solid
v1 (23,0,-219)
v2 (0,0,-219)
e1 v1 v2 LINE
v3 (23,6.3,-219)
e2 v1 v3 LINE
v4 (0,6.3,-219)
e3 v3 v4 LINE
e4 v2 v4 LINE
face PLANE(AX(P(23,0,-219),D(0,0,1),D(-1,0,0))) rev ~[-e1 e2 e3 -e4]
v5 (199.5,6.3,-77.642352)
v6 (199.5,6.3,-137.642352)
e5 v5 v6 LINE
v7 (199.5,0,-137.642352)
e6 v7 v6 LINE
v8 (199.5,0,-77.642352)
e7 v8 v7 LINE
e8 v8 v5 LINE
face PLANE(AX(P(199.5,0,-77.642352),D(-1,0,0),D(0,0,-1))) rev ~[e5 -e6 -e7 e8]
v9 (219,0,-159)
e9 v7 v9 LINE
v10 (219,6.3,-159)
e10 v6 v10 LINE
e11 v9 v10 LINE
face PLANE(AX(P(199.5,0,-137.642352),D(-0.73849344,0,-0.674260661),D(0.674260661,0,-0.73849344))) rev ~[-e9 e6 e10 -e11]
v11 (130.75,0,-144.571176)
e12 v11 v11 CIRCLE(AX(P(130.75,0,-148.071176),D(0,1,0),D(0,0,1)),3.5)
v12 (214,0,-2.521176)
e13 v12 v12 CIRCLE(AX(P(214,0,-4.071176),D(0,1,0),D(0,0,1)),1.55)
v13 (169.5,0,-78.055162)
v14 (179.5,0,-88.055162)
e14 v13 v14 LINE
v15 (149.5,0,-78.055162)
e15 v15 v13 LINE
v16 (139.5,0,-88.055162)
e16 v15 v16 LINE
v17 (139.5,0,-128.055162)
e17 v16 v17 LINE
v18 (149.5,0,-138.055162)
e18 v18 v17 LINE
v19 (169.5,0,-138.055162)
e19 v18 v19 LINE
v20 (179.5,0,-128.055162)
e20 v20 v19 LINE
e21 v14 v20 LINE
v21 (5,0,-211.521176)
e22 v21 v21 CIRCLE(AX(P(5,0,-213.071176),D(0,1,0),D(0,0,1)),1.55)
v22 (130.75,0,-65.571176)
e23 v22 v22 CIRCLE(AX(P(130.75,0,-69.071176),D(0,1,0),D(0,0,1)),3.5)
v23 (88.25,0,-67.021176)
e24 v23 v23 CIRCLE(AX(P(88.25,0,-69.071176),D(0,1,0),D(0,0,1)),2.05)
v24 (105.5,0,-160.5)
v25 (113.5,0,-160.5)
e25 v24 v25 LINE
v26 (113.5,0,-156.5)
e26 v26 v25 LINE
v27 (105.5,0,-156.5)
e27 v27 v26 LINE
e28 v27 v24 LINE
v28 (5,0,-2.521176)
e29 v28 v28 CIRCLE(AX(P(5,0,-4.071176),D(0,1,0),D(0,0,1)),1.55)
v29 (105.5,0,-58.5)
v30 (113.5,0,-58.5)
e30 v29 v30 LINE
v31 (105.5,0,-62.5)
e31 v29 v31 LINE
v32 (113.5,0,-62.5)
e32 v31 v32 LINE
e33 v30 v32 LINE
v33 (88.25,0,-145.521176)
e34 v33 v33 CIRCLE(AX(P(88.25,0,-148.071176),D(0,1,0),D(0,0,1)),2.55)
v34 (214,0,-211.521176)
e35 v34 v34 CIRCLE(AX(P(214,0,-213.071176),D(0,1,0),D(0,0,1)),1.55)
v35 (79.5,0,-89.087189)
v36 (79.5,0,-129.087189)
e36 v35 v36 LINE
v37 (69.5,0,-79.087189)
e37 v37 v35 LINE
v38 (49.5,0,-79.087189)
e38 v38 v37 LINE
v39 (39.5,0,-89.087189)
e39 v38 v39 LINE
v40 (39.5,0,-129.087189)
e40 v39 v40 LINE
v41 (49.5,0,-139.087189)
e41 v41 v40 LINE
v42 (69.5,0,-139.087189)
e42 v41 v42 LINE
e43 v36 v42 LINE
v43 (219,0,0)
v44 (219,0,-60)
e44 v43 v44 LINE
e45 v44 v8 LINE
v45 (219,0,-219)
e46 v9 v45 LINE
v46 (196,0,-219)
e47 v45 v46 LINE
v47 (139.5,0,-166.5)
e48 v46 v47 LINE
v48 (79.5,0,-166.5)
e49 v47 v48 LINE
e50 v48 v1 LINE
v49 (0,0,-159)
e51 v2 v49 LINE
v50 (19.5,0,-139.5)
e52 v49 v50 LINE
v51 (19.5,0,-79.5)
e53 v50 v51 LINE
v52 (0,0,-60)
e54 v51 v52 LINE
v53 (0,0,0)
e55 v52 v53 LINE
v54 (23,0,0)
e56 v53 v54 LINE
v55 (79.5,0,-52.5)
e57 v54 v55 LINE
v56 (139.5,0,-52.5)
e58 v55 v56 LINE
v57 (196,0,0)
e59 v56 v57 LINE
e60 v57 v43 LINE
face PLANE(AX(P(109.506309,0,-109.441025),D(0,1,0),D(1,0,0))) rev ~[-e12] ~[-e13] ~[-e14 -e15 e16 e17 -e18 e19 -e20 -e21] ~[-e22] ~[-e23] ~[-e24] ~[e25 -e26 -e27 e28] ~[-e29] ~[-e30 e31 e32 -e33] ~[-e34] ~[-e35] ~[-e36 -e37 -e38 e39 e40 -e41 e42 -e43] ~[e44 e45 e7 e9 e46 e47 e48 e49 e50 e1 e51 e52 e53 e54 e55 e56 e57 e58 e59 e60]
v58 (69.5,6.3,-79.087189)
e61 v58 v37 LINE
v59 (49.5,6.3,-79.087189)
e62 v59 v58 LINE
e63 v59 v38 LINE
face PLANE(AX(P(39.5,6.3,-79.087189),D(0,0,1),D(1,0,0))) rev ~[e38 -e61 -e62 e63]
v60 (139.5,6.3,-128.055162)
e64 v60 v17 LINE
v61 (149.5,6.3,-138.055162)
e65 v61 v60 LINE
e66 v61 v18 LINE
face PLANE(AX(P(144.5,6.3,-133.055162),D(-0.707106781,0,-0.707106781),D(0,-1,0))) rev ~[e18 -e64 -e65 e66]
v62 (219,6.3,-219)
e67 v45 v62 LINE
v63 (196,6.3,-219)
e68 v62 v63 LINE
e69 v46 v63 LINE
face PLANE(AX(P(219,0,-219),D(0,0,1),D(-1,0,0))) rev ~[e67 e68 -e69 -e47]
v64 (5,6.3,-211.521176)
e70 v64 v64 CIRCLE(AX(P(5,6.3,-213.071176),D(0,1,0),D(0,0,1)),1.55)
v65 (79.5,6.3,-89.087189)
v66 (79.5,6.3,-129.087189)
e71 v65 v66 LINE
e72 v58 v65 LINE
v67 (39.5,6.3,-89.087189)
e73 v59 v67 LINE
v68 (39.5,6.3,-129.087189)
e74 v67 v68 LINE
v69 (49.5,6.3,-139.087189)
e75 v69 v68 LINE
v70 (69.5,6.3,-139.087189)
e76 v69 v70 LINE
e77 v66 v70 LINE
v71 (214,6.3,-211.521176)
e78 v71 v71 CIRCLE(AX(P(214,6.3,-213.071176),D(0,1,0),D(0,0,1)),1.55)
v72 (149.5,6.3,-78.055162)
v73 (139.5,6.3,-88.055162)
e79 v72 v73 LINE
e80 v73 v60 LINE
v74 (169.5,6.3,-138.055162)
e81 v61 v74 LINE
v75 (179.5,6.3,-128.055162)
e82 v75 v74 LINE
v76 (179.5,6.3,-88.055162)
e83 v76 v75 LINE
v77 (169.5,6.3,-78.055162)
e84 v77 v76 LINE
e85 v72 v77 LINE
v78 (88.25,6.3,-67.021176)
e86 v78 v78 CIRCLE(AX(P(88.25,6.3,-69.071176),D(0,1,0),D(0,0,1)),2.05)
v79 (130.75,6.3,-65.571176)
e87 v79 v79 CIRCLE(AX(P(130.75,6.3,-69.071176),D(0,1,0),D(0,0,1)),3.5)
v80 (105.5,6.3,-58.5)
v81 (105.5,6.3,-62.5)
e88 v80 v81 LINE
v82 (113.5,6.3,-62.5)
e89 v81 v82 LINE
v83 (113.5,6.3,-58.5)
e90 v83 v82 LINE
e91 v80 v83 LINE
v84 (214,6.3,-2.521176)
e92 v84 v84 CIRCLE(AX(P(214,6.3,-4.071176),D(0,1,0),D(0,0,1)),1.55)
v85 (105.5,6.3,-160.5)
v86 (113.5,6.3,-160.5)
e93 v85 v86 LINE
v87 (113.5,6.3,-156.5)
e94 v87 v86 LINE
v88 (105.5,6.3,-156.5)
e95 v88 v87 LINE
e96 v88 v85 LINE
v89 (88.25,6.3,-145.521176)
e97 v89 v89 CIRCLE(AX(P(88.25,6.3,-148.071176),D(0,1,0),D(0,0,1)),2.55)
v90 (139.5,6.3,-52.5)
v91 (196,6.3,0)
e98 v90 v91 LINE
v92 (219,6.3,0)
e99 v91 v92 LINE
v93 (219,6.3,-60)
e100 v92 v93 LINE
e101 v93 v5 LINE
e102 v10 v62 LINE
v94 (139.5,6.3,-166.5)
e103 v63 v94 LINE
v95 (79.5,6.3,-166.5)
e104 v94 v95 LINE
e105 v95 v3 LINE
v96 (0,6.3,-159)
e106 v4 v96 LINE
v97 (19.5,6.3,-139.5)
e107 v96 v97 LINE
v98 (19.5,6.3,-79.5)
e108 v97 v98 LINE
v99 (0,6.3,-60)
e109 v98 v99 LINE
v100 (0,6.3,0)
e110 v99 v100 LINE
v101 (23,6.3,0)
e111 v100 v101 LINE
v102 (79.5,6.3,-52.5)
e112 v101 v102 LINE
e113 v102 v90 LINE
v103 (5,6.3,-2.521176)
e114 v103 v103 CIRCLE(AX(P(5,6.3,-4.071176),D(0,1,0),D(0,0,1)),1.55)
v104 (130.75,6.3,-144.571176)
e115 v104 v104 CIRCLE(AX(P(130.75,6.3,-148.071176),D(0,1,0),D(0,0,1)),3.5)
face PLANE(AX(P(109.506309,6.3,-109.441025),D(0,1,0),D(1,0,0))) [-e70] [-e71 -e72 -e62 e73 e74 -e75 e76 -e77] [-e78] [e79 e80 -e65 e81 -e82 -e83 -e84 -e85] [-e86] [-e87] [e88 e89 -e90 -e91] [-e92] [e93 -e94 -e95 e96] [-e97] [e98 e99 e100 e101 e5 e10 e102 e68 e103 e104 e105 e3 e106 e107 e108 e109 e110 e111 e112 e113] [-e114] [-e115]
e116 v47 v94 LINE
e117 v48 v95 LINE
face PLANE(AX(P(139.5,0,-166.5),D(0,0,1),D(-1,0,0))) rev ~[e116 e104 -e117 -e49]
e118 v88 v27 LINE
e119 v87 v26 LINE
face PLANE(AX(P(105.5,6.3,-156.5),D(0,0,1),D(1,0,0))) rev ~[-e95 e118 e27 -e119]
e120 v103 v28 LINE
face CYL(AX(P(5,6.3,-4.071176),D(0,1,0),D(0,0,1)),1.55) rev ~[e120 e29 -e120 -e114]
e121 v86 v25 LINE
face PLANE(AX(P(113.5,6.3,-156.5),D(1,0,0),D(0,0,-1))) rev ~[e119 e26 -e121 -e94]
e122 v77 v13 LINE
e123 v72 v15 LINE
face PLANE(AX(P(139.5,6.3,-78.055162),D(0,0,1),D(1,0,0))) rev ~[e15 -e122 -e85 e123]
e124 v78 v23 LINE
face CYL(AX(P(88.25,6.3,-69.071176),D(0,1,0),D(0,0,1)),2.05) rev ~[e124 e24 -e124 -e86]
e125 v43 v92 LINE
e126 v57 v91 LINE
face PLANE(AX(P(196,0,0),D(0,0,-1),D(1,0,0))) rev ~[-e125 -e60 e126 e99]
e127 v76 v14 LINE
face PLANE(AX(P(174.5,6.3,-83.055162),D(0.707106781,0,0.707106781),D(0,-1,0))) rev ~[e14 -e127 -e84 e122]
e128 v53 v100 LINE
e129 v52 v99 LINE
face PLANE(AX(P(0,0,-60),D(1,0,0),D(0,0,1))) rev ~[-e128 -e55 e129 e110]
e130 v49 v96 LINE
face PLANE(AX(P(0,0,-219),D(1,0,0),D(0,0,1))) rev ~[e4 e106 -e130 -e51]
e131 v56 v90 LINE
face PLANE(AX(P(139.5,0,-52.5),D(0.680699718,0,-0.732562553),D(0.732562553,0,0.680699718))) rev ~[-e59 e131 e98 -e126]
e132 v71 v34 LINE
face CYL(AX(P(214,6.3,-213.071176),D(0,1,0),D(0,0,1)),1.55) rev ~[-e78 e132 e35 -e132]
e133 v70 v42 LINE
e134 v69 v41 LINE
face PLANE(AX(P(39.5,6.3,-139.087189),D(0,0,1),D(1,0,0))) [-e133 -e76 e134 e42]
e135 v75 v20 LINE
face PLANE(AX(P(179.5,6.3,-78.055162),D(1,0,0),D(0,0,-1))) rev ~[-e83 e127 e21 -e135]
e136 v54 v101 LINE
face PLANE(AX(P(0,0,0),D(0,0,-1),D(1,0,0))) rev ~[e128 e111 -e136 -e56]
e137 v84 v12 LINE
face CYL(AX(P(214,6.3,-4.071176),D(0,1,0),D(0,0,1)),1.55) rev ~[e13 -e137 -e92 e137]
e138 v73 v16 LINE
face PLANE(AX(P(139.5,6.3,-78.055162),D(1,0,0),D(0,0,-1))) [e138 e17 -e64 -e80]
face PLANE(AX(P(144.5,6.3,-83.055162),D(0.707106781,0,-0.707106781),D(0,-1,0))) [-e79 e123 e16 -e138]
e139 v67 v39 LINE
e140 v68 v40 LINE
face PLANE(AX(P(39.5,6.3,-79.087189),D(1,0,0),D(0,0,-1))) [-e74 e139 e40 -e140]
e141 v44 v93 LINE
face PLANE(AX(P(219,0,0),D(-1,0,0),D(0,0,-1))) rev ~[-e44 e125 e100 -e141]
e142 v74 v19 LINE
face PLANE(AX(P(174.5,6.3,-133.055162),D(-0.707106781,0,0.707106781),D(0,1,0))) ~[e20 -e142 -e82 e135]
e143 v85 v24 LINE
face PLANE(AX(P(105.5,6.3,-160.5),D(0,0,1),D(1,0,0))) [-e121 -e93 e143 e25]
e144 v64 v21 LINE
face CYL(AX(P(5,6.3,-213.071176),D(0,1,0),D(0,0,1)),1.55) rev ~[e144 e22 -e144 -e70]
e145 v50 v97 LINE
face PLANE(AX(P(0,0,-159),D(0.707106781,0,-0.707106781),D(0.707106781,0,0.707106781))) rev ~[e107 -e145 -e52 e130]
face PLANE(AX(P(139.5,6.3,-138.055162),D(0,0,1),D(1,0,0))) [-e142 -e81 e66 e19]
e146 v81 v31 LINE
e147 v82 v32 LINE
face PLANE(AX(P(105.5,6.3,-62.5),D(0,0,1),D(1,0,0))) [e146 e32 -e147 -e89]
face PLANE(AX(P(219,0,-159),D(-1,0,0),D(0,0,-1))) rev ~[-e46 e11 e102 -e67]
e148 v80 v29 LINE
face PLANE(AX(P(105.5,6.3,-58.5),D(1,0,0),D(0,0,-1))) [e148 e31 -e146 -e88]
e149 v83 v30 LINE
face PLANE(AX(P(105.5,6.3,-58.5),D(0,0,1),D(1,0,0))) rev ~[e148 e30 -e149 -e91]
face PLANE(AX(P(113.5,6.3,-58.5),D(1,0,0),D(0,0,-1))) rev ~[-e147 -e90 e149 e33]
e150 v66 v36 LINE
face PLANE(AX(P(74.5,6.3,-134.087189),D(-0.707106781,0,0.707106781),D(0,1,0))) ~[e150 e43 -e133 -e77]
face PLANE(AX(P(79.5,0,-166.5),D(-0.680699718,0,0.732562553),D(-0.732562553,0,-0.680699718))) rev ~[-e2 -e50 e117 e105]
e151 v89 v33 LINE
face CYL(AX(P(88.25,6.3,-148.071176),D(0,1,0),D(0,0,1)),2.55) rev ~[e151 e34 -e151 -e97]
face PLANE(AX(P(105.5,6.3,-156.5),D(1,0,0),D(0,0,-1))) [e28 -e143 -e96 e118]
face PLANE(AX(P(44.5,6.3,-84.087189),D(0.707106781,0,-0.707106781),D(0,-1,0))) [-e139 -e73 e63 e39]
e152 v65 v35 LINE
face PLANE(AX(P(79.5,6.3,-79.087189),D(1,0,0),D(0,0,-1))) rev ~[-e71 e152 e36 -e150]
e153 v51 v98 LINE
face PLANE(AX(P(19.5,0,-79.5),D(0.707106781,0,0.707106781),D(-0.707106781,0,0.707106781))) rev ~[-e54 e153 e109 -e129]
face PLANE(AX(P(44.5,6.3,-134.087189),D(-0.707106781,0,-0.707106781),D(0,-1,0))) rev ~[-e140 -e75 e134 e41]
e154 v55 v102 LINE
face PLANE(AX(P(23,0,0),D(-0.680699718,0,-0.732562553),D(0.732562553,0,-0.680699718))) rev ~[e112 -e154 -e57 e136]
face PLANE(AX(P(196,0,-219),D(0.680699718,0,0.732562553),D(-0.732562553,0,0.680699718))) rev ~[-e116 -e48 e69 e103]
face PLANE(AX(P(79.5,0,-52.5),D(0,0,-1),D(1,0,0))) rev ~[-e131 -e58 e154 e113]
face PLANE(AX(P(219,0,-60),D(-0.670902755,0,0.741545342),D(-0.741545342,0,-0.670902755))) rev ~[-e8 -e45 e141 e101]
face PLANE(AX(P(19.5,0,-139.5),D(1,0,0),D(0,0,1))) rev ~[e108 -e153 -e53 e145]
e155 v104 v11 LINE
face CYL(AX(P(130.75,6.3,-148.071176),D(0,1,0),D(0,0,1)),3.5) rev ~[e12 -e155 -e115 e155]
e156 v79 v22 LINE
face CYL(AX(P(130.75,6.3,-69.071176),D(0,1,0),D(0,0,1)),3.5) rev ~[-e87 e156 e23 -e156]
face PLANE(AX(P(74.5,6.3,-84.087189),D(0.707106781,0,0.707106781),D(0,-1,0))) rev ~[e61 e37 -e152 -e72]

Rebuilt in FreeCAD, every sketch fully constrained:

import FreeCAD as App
import Part
import Sketcher
from FreeCAD import Vector
Q = App.Units.Quantity


def edges_at(feature, points):
    """Names of the edges that pass closest to the given points."""
    edges = feature.Shape.Edges
    near = lambda p: min(range(len(edges)), key=lambda i: edges[i].distToShape(Part.Vertex(*p))[0])
    return sorted({f"Edge{near(p) + 1}" for p in points})

doc = App.newDocument("Part")
body = doc.addObject("PartDesign::Body", "Body")

sketch1 = body.newObject("Sketcher::SketchObject", "Sketch")
sketch1.AttachmentSupport = (doc.getObject("XZ_Plane"), [""])
sketch1.MapMode = "FlatFace"
sketch1.addGeometry([
    Part.LineSegment(Vector(0, 0, 0), Vector(23, 0, 0)),
    Part.LineSegment(Vector(23, 0, 0), Vector(80, -52, 0)),
    Part.LineSegment(Vector(80, -52, 0), Vector(140, -52, 0)),
    Part.LineSegment(Vector(140, -52, 0), Vector(196, 0, 0)),
    Part.LineSegment(Vector(196, 0, 0), Vector(219, 0, 0)),
    Part.LineSegment(Vector(219, 0, 0), Vector(219, -60, 0)),
    Part.LineSegment(Vector(219, -60, 0), Vector(200, -78, 0)),
    Part.LineSegment(Vector(200, -78, 0), Vector(200, -138, 0)),
    Part.LineSegment(Vector(200, -138, 0), Vector(219, -159, 0)),
    Part.LineSegment(Vector(219, -159, 0), Vector(219, -219, 0)),
    Part.LineSegment(Vector(219, -219, 0), Vector(196, -219, 0)),
    Part.LineSegment(Vector(196, -219, 0), Vector(140, -166, 0)),
    Part.LineSegment(Vector(140, -166, 0), Vector(80, -166, 0)),
    Part.LineSegment(Vector(80, -166, 0), Vector(23, -219, 0)),
    Part.LineSegment(Vector(23, -219, 0), Vector(0, -219, 0)),
    Part.LineSegment(Vector(0, -219, 0), Vector(0, -159, 0)),
    Part.LineSegment(Vector(0, -159, 0), Vector(20, -140, 0)),
    Part.LineSegment(Vector(20, -140, 0), Vector(20, -80, 0)),
    Part.LineSegment(Vector(20, -80, 0), Vector(0, -60, 0)),
    Part.LineSegment(Vector(0, -60, 0), Vector(0, 0, 0)),
], False)
sketch1.addConstraint([
    Sketcher.Constraint("Coincident", 0, 2, 1, 1),
    Sketcher.Constraint("Coincident", 1, 2, 2, 1),
    Sketcher.Constraint("Coincident", 2, 2, 3, 1),
    Sketcher.Constraint("Coincident", 3, 2, 4, 1),
    Sketcher.Constraint("Coincident", 4, 2, 5, 1),
    Sketcher.Constraint("Coincident", 5, 2, 6, 1),
    Sketcher.Constraint("Coincident", 6, 2, 7, 1),
    Sketcher.Constraint("Coincident", 7, 2, 8, 1),
    Sketcher.Constraint("Coincident", 8, 2, 9, 1),
    Sketcher.Constraint("Coincident", 9, 2, 10, 1),
    Sketcher.Constraint("Coincident", 10, 2, 11, 1),
    Sketcher.Constraint("Coincident", 11, 2, 12, 1),
    Sketcher.Constraint("Coincident", 12, 2, 13, 1),
    Sketcher.Constraint("Coincident", 13, 2, 14, 1),
    Sketcher.Constraint("Coincident", 14, 2, 15, 1),
    Sketcher.Constraint("Coincident", 15, 2, 16, 1),
    Sketcher.Constraint("Coincident", 16, 2, 17, 1),
    Sketcher.Constraint("Coincident", 17, 2, 18, 1),
    Sketcher.Constraint("Coincident", 18, 2, 19, 1),
    Sketcher.Constraint("Coincident", 19, 2, 0, 1),
    Sketcher.Constraint("Horizontal", 0),
    Sketcher.Constraint("Horizontal", 2),
    Sketcher.Constraint("Horizontal", 4),
    Sketcher.Constraint("Vertical", 5),
    Sketcher.Constraint("Vertical", 7),
    Sketcher.Constraint("Vertical", 9),
    Sketcher.Constraint("Horizontal", 10),
    Sketcher.Constraint("Horizontal", 12),
    Sketcher.Constraint("Horizontal", 14),
    Sketcher.Constraint("Vertical", 15),
    Sketcher.Constraint("Vertical", 17),
    Sketcher.Constraint("Vertical", 19),
    Sketcher.Constraint("Coincident", 19, 2, -1, 1),
    Sketcher.Constraint("PointOnObject", 3, 2, -1),
    Sketcher.Constraint("PointOnObject", 14, 2, -2),
    Sketcher.Constraint("Parallel", 1, 11),
    Sketcher.Constraint("Parallel", 3, 13),
    Sketcher.Constraint("Perpendicular", 16, 18),
    Sketcher.Constraint("Horizontal", 10, 2, 13, 2),
    Sketcher.Constraint("Horizontal", 8, 2, 15, 2),
    Sketcher.Constraint("Horizontal", 5, 2, 18, 2),
    Sketcher.Constraint("Vertical", 5, 2, 8, 2),
    Sketcher.Constraint("Vertical", 3, 2, 10, 2),
    Sketcher.Constraint("Vertical", 2, 2, 11, 2),
    Sketcher.Constraint("Vertical", 1, 2, 12, 2),
    Sketcher.Constraint("Vertical", 0, 2, 13, 2),
    Sketcher.Constraint("Equal", 0, 4),
    Sketcher.Constraint("Equal", 12, 5),
    Sketcher.Constraint("Equal", 5, 7),
    Sketcher.Constraint("Equal", 7, 9),
    Sketcher.Constraint("Equal", 15, 17),
    Sketcher.Constraint("Equal", 16, 18),
    Sketcher.Constraint("DistanceX", 0, 1, 0, 2, Q("23 mm")),
    Sketcher.Constraint("DistanceX", 2, 1, 2, 2, Q("60 mm")),
    Sketcher.Constraint("DistanceX", -1, 1, 3, 2, Q("196 mm")),
    Sketcher.Constraint("DistanceY", 8, 2, -1, 1, Q("159 mm")),
    Sketcher.Constraint("DistanceX", 2, 2, 6, 2, Q("60 mm")),
    Sketcher.Constraint("DistanceY", 12, 2, 1, 2, Q("114 mm")),
    Sketcher.Constraint("DistanceY", 6, 2, -1, 1, Q("77.642352 mm")),
])
pad1 = body.newObject("PartDesign::Pad", "Pad")
pad1.Profile = sketch1
pad1.Length = 6.3
pad1.Reversed = True

sketch2 = body.newObject("Sketcher::SketchObject", "Sketch001")
sketch2.AttachmentSupport = (doc.getObject("XZ_Plane"), [""])
sketch2.MapMode = "FlatFace"
sketch2.AttachmentOffset = App.Placement(Vector(0, 0, -6.3), App.Rotation())
sketch2.addGeometry([
    Part.LineSegment(Vector(105.5, -160.5, 0), Vector(105.5, -156.5, 0)),
    Part.LineSegment(Vector(105.5, -156.5, 0), Vector(113.5, -156.5, 0)),
    Part.LineSegment(Vector(113.5, -156.5, 0), Vector(113.5, -160.5, 0)),
    Part.LineSegment(Vector(113.5, -160.5, 0), Vector(105.5, -160.5, 0)),
    Part.LineSegment(Vector(105.5, -62.5, 0), Vector(105.5, -58.5, 0)),
    Part.LineSegment(Vector(105.5, -58.5, 0), Vector(113.5, -58.5, 0)),
    Part.LineSegment(Vector(113.5, -58.5, 0), Vector(113.5, -62.5, 0)),
    Part.LineSegment(Vector(113.5, -62.5, 0), Vector(105.5, -62.5, 0)),
    Part.LineSegment(Vector(39.5, -139.1, 0), Vector(39.5, -79.1, 0)),
    Part.LineSegment(Vector(39.5, -79.1, 0), Vector(79.5, -79.1, 0)),
    Part.LineSegment(Vector(79.5, -79.1, 0), Vector(79.5, -139.1, 0)),
    Part.LineSegment(Vector(79.5, -139.1, 0), Vector(39.5, -139.1, 0)),
    Part.LineSegment(Vector(139.5, -138.1, 0), Vector(139.5, -78.1, 0)),
    Part.LineSegment(Vector(139.5, -78.1, 0), Vector(179.5, -78.1, 0)),
    Part.LineSegment(Vector(179.5, -78.1, 0), Vector(179.5, -138.1, 0)),
    Part.LineSegment(Vector(179.5, -138.1, 0), Vector(139.5, -138.1, 0)),
], False)
sketch2.addConstraint([
    Sketcher.Constraint("Coincident", 0, 2, 1, 1),
    Sketcher.Constraint("Coincident", 1, 2, 2, 1),
    Sketcher.Constraint("Coincident", 2, 2, 3, 1),
    Sketcher.Constraint("Coincident", 3, 2, 0, 1),
    Sketcher.Constraint("Coincident", 4, 2, 5, 1),
    Sketcher.Constraint("Coincident", 5, 2, 6, 1),
    Sketcher.Constraint("Coincident", 6, 2, 7, 1),
    Sketcher.Constraint("Coincident", 7, 2, 4, 1),
    Sketcher.Constraint("Coincident", 8, 2, 9, 1),
    Sketcher.Constraint("Coincident", 9, 2, 10, 1),
    Sketcher.Constraint("Coincident", 10, 2, 11, 1),
    Sketcher.Constraint("Coincident", 11, 2, 8, 1),
    Sketcher.Constraint("Coincident", 12, 2, 13, 1),
    Sketcher.Constraint("Coincident", 13, 2, 14, 1),
    Sketcher.Constraint("Coincident", 14, 2, 15, 1),
    Sketcher.Constraint("Coincident", 15, 2, 12, 1),
    Sketcher.Constraint("Vertical", 0),
    Sketcher.Constraint("Horizontal", 1),
    Sketcher.Constraint("Vertical", 2),
    Sketcher.Constraint("Horizontal", 3),
    Sketcher.Constraint("Vertical", 4),
    Sketcher.Constraint("Horizontal", 5),
    Sketcher.Constraint("Vertical", 6),
    Sketcher.Constraint("Horizontal", 7),
    Sketcher.Constraint("Vertical", 8),
    Sketcher.Constraint("Horizontal", 9),
    Sketcher.Constraint("Vertical", 10),
    Sketcher.Constraint("Horizontal", 11),
    Sketcher.Constraint("Vertical", 12),
    Sketcher.Constraint("Horizontal", 13),
    Sketcher.Constraint("Vertical", 14),
    Sketcher.Constraint("Horizontal", 15),
    Sketcher.Constraint("Vertical", 3, 2, 4, 2),
    Sketcher.Constraint("Vertical", 2, 2, 5, 2),
    Sketcher.Constraint("Equal", 11, 13),
    Sketcher.Constraint("Equal", 2, 4),
    Sketcher.Constraint("Equal", 10, 12),
    Sketcher.Constraint("DistanceX", 1, 1, 1, 2, Q("8 mm")),
    Sketcher.Constraint("DistanceX", 9, 1, 9, 2, Q("40 mm")),
    Sketcher.Constraint("DistanceY", 0, 1, 0, 2, Q("4 mm")),
    Sketcher.Constraint("DistanceY", 8, 1, 8, 2, Q("60 mm")),
    Sketcher.Constraint("DistanceY", 0, 2, 4, 2, Q("98 mm")),
    Sketcher.Constraint("DistanceX", 8, 2, 7, 2, Q("66 mm")),
    Sketcher.Constraint("DistanceX", 6, 2, 12, 2, Q("26 mm")),
    Sketcher.Constraint("DistanceX", -1, 1, 0, 2, Q("105.5 mm")),
    Sketcher.Constraint("DistanceY", 0, 2, -1, 1, Q("156.5 mm")),
    Sketcher.Constraint("DistanceY", 8, 2, -1, 1, Q("79.087189 mm")),
    Sketcher.Constraint("DistanceY", 12, 2, -1, 1, Q("78.055162 mm")),
])
pocket1 = body.newObject("PartDesign::Pocket", "Pocket")
pocket1.Profile = sketch2
pocket1.Type = "ThroughAll"
pocket1.Reversed = True
doc.recompute()

chamfer = body.newObject("PartDesign::Chamfer", "Chamfer")
chamfer.Base = (pocket1, edges_at(pocket1, [
    (79.5, 3.15, -139.087),
    (79.5, 3.15, -79.087),
    (39.5, 3.15, -79.087),
    (39.5, 3.15, -139.087),
    (179.5, 3.15, -138.055),
    (179.5, 3.15, -78.055),
    (139.5, 3.15, -78.055),
    (139.5, 3.15, -138.055),
]))
chamfer.Size = 10

sketch3 = body.newObject("Sketcher::SketchObject", "Sketch002")
sketch3.AttachmentSupport = (doc.getObject("XZ_Plane"), [""])
sketch3.MapMode = "FlatFace"
sketch3.AttachmentOffset = App.Placement(Vector(0, 0, -6.3), App.Rotation())
sketch3.addGeometry([
    Part.Circle(Vector(5, -213.1, 0), Vector(0, 0, 1), 1.6),
    Part.Circle(Vector(214, -213.1, 0), Vector(0, 0, 1), 1.6),
    Part.Circle(Vector(214, -4.1, 0), Vector(0, 0, 1), 1.6),
    Part.Circle(Vector(5, -4.1, 0), Vector(0, 0, 1), 1.6),
    Part.Circle(Vector(88.2, -148.1, 0), Vector(0, 0, 1), 2.5),
    Part.Circle(Vector(88.2, -69.1, 0), Vector(0, 0, 1), 2),
    Part.Circle(Vector(130.8, -69.1, 0), Vector(0, 0, 1), 3.5),
    Part.Circle(Vector(130.8, -148.1, 0), Vector(0, 0, 1), 3.5),
], False)
sketch3.addConstraint([
    Sketcher.Constraint("Equal", 0, 1),
    Sketcher.Constraint("Equal", 1, 2),
    Sketcher.Constraint("Equal", 2, 3),
    Sketcher.Constraint("Equal", 6, 7),
    Sketcher.Constraint("Horizontal", 0, 3, 1, 3),
    Sketcher.Constraint("Horizontal", 2, 3, 3, 3),
    Sketcher.Constraint("Horizontal", 5, 3, 6, 3),
    Sketcher.Constraint("Horizontal", 4, 3, 7, 3),
    Sketcher.Constraint("Vertical", 1, 3, 2, 3),
    Sketcher.Constraint("Vertical", 0, 3, 3, 3),
    Sketcher.Constraint("Vertical", 4, 3, 5, 3),
    Sketcher.Constraint("Vertical", 6, 3, 7, 3),
    Sketcher.Constraint("Diameter", 6, Q("7 mm")),
    Sketcher.Constraint("Diameter", 0, Q("3.1 mm")),
    Sketcher.Constraint("Diameter", 4, Q("5.1 mm")),
    Sketcher.Constraint("Diameter", 5, Q("4.1 mm")),
    Sketcher.Constraint("DistanceX", -1, 1, 0, 3, Q("5 mm")),
    Sketcher.Constraint("DistanceX", -1, 1, 1, 3, Q("214 mm")),
    Sketcher.Constraint("DistanceY", 1, 3, 2, 3, Q("209 mm")),
    Sketcher.Constraint("DistanceY", 0, 3, 4, 3, Q("65 mm")),
    Sketcher.Constraint("DistanceY", 4, 3, 5, 3, Q("79 mm")),
    Sketcher.Constraint("DistanceX", 5, 3, 6, 3, Q("42.5 mm")),
    Sketcher.Constraint("DistanceX", -1, 1, 4, 3, Q("88.25 mm")),
    Sketcher.Constraint("DistanceY", 0, 3, -1, 1, Q("213.071176 mm")),
])
pocket2 = body.newObject("PartDesign::Pocket", "Pocket001")
pocket2.Profile = sketch3
pocket2.Type = "ThroughAll"
pocket2.Reversed = True

doc.recompute()
